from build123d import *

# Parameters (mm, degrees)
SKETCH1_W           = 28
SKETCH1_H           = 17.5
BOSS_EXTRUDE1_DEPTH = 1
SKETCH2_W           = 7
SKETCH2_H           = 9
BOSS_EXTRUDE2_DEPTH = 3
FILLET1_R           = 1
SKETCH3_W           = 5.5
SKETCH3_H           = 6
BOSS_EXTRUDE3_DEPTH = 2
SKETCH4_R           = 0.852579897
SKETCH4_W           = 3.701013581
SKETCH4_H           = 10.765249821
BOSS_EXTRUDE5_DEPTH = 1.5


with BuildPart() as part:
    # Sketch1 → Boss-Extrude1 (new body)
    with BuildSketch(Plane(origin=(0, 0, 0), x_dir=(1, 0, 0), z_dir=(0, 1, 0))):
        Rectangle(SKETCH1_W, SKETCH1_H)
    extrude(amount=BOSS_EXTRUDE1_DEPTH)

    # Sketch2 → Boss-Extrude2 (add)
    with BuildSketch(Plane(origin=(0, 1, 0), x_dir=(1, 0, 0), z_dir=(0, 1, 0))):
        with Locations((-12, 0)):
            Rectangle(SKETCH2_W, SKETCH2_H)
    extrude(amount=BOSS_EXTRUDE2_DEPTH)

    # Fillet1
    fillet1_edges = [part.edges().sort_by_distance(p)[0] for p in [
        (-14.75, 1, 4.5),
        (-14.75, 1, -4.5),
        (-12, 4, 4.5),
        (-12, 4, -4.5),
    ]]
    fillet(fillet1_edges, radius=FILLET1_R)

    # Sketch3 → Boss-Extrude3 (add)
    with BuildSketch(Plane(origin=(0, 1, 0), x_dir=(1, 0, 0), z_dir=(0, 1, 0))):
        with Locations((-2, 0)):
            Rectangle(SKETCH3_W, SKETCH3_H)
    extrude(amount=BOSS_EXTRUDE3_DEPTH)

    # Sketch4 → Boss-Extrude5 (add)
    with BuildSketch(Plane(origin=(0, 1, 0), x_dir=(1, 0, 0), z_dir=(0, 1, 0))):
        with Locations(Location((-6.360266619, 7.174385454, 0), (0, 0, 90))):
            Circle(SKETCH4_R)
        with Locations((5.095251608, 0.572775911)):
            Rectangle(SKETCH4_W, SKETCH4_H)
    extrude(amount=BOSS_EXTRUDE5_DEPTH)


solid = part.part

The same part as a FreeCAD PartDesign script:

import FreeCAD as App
import Part
import Sketcher
Q = App.Units.Quantity


def edges_at(feature, points):
    """Names of the edges that pass closest to the given points."""
    edges = feature.Shape.Edges
    near = lambda p: min(range(len(edges)), key=lambda i: edges[i].distToShape(Part.Vertex(*p))[0])
    return sorted({f"Edge{near(p) + 1}" for p in points})

doc = App.newDocument("Part")
body = doc.addObject("PartDesign::Body", "Body")

# Sketch on XZ plane
sketch1 = doc.addObject("Sketcher::SketchObject", "Sketch")
body.addObject(sketch1)
sketch1.AttachmentSupport = (doc.XZ_Plane, [""])
sketch1.MapMode = "FlatFace"
sketch1.addGeometry([
    Part.LineSegment(App.Vector(-14, -9, 0), App.Vector(-14, 9, 0)),
    Part.LineSegment(App.Vector(-14, 9, 0), App.Vector(14, 9, 0)),
    Part.LineSegment(App.Vector(14, 9, 0), App.Vector(14, -9, 0)),
    Part.LineSegment(App.Vector(14, -9, 0), App.Vector(-14, -9, 0)),
], False)
sketch1.addConstraint([
    Sketcher.Constraint("Coincident", 0, 2, 1, 1),
    Sketcher.Constraint("Coincident", 1, 2, 2, 1),
    Sketcher.Constraint("Coincident", 2, 2, 3, 1),
    Sketcher.Constraint("Coincident", 3, 2, 0, 1),
    Sketcher.Constraint("Vertical", 0),
    Sketcher.Constraint("Horizontal", 1),
    Sketcher.Constraint("Vertical", 2),
    Sketcher.Constraint("Horizontal", 3),
    Sketcher.Constraint("Symmetric", 0, 2, 2, 2, -1, 1),
    Sketcher.Constraint("DistanceX", 1, 1, 1, 2, Q("28 mm")),
    Sketcher.Constraint("DistanceY", 0, 1, 0, 2, Q("17.5 mm")),
])
pad1 = doc.addObject("PartDesign::Pad", "Pad")
body.addObject(pad1)
pad1.Profile = sketch1
pad1.Length = 1
pad1.Reversed = True

# Sketch on XZ plane
sketch2 = doc.addObject("Sketcher::SketchObject", "Sketch001")
body.addObject(sketch2)
sketch2.AttachmentSupport = (doc.XZ_Plane, [""])
sketch2.MapMode = "FlatFace"
sketch2.AttachmentOffset = App.Placement(App.Vector(0, 0, -1), App.Rotation())
sketch2.addGeometry([
    Part.LineSegment(App.Vector(-16, -4, 0), App.Vector(-16, 4, 0)),
    Part.LineSegment(App.Vector(-16, 4, 0), App.Vector(-8, 4, 0)),
    Part.LineSegment(App.Vector(-8, 4, 0), App.Vector(-8, -4, 0)),
    Part.LineSegment(App.Vector(-8, -4, 0), App.Vector(-16, -4, 0)),
], False)
sketch2.addConstraint([
    Sketcher.Constraint("Coincident", 0, 2, 1, 1),
    Sketcher.Constraint("Coincident", 1, 2, 2, 1),
    Sketcher.Constraint("Coincident", 2, 2, 3, 1),
    Sketcher.Constraint("Coincident", 3, 2, 0, 1),
    Sketcher.Constraint("Vertical", 0),
    Sketcher.Constraint("Horizontal", 1),
    Sketcher.Constraint("Vertical", 2),
    Sketcher.Constraint("Horizontal", 3),
    Sketcher.Constraint("DistanceX", 1, 1, 1, 2, Q("7 mm")),
    Sketcher.Constraint("DistanceY", 0, 1, 0, 2, Q("9 mm")),
    Sketcher.Constraint("DistanceX", 0, 2, -1, 1, Q("15.5 mm")),
    Sketcher.Constraint("DistanceY", -1, 1, 0, 2, Q("4.5 mm")),
])
pad2 = doc.addObject("PartDesign::Pad", "Pad001")
body.addObject(pad2)
pad2.Profile = sketch2
pad2.Length = 3
pad2.Reversed = True
doc.recompute()

fillet = doc.addObject("PartDesign::Fillet", "Fillet")
body.addObject(fillet)
fillet.Base = (pad2, edges_at(pad2, [
    (-14.75, 1, 4.5),
    (-14.75, 1, -4.5),
    (-12, 4, 4.5),
    (-12, 4, -4.5),
]))
fillet.Radius = 1

# Sketch on XZ plane
sketch3 = doc.addObject("Sketcher::SketchObject", "Sketch002")
body.addObject(sketch3)
sketch3.AttachmentSupport = (doc.XZ_Plane, [""])
sketch3.MapMode = "FlatFace"
sketch3.AttachmentOffset = App.Placement(App.Vector(0, 0, -1), App.Rotation())
sketch3.addGeometry([
    Part.LineSegment(App.Vector(-5, -3, 0), App.Vector(-5, 3, 0)),
    Part.LineSegment(App.Vector(-5, 3, 0), App.Vector(1, 3, 0)),
    Part.LineSegment(App.Vector(1, 3, 0), App.Vector(1, -3, 0)),
    Part.LineSegment(App.Vector(1, -3, 0), App.Vector(-5, -3, 0)),
], False)
sketch3.addConstraint([
    Sketcher.Constraint("Coincident", 0, 2, 1, 1),
    Sketcher.Constraint("Coincident", 1, 2, 2, 1),
    Sketcher.Constraint("Coincident", 2, 2, 3, 1),
    Sketcher.Constraint("Coincident", 3, 2, 0, 1),
    Sketcher.Constraint("Vertical", 0),
    Sketcher.Constraint("Horizontal", 1),
    Sketcher.Constraint("Vertical", 2),
    Sketcher.Constraint("Horizontal", 3),
    Sketcher.Constraint("DistanceY", 0, 1, 0, 2, Q("6 mm")),
    Sketcher.Constraint("DistanceX", 1, 1, 1, 2, Q("5.5 mm")),
    Sketcher.Constraint("DistanceY", -1, 1, 0, 2, Q("3 mm")),
    Sketcher.Constraint("DistanceX", 0, 2, -1, 1, Q("4.75 mm")),
])
pad3 = doc.addObject("PartDesign::Pad", "Pad002")
body.addObject(pad3)
pad3.Profile = sketch3
pad3.Length = 2
pad3.Reversed = True

# Sketch on XZ plane
sketch4 = doc.addObject("Sketcher::SketchObject", "Sketch003")
body.addObject(sketch4)
sketch4.AttachmentSupport = (doc.XZ_Plane, [""])
sketch4.MapMode = "FlatFace"
sketch4.AttachmentOffset = App.Placement(App.Vector(0, 0, -1), App.Rotation())
sketch4.addGeometry([
    Part.Circle(App.Vector(-6.4, -7.2, 0), App.Vector(0, 0, 1), 0.9),  # 0
    Part.LineSegment(App.Vector(3.2, -6, 0), App.Vector(3.2, 4.8, 0)),  # 1
    Part.LineSegment(App.Vector(3.2, 4.8, 0), App.Vector(6.9, 4.8, 0)),  # 2
    Part.LineSegment(App.Vector(6.9, 4.8, 0), App.Vector(6.9, -6, 0)),  # 3
    Part.LineSegment(App.Vector(6.9, -6, 0), App.Vector(3.2, -6, 0)),  # 4
], False)
sketch4.addConstraint([
    Sketcher.Constraint("Coincident", 1, 2, 2, 1),
    Sketcher.Constraint("Coincident", 2, 2, 3, 1),
    Sketcher.Constraint("Coincident", 3, 2, 4, 1),
    Sketcher.Constraint("Coincident", 4, 2, 1, 1),
    Sketcher.Constraint("Vertical", 1),
    Sketcher.Constraint("Horizontal", 2),
    Sketcher.Constraint("Vertical", 3),
    Sketcher.Constraint("Horizontal", 4),
    Sketcher.Constraint("Diameter", 0, Q("1.70516 mm")),
    Sketcher.Constraint("DistanceY", 1, 1, 1, 2, Q("10.76525 mm")),
    Sketcher.Constraint("DistanceY", 3, 2, -1, 1, Q("5.955401 mm")),
    Sketcher.Constraint("DistanceX", 2, 1, 2, 2, Q("3.701014 mm")),
    Sketcher.Constraint("DistanceX", -1, 1, 2, 2, Q("6.945758 mm")),
    Sketcher.Constraint("DistanceX", 0, 3, 1, 2, Q("9.605011 mm")),
    Sketcher.Constraint("DistanceY", 0, 3, -1, 1, Q("7.174385 mm")),
])
pad4 = doc.addObject("PartDesign::Pad", "Pad003")
body.addObject(pad4)
pad4.Profile = sketch4
pad4.Length = 1.5
pad4.Reversed = True

doc.recompute()
